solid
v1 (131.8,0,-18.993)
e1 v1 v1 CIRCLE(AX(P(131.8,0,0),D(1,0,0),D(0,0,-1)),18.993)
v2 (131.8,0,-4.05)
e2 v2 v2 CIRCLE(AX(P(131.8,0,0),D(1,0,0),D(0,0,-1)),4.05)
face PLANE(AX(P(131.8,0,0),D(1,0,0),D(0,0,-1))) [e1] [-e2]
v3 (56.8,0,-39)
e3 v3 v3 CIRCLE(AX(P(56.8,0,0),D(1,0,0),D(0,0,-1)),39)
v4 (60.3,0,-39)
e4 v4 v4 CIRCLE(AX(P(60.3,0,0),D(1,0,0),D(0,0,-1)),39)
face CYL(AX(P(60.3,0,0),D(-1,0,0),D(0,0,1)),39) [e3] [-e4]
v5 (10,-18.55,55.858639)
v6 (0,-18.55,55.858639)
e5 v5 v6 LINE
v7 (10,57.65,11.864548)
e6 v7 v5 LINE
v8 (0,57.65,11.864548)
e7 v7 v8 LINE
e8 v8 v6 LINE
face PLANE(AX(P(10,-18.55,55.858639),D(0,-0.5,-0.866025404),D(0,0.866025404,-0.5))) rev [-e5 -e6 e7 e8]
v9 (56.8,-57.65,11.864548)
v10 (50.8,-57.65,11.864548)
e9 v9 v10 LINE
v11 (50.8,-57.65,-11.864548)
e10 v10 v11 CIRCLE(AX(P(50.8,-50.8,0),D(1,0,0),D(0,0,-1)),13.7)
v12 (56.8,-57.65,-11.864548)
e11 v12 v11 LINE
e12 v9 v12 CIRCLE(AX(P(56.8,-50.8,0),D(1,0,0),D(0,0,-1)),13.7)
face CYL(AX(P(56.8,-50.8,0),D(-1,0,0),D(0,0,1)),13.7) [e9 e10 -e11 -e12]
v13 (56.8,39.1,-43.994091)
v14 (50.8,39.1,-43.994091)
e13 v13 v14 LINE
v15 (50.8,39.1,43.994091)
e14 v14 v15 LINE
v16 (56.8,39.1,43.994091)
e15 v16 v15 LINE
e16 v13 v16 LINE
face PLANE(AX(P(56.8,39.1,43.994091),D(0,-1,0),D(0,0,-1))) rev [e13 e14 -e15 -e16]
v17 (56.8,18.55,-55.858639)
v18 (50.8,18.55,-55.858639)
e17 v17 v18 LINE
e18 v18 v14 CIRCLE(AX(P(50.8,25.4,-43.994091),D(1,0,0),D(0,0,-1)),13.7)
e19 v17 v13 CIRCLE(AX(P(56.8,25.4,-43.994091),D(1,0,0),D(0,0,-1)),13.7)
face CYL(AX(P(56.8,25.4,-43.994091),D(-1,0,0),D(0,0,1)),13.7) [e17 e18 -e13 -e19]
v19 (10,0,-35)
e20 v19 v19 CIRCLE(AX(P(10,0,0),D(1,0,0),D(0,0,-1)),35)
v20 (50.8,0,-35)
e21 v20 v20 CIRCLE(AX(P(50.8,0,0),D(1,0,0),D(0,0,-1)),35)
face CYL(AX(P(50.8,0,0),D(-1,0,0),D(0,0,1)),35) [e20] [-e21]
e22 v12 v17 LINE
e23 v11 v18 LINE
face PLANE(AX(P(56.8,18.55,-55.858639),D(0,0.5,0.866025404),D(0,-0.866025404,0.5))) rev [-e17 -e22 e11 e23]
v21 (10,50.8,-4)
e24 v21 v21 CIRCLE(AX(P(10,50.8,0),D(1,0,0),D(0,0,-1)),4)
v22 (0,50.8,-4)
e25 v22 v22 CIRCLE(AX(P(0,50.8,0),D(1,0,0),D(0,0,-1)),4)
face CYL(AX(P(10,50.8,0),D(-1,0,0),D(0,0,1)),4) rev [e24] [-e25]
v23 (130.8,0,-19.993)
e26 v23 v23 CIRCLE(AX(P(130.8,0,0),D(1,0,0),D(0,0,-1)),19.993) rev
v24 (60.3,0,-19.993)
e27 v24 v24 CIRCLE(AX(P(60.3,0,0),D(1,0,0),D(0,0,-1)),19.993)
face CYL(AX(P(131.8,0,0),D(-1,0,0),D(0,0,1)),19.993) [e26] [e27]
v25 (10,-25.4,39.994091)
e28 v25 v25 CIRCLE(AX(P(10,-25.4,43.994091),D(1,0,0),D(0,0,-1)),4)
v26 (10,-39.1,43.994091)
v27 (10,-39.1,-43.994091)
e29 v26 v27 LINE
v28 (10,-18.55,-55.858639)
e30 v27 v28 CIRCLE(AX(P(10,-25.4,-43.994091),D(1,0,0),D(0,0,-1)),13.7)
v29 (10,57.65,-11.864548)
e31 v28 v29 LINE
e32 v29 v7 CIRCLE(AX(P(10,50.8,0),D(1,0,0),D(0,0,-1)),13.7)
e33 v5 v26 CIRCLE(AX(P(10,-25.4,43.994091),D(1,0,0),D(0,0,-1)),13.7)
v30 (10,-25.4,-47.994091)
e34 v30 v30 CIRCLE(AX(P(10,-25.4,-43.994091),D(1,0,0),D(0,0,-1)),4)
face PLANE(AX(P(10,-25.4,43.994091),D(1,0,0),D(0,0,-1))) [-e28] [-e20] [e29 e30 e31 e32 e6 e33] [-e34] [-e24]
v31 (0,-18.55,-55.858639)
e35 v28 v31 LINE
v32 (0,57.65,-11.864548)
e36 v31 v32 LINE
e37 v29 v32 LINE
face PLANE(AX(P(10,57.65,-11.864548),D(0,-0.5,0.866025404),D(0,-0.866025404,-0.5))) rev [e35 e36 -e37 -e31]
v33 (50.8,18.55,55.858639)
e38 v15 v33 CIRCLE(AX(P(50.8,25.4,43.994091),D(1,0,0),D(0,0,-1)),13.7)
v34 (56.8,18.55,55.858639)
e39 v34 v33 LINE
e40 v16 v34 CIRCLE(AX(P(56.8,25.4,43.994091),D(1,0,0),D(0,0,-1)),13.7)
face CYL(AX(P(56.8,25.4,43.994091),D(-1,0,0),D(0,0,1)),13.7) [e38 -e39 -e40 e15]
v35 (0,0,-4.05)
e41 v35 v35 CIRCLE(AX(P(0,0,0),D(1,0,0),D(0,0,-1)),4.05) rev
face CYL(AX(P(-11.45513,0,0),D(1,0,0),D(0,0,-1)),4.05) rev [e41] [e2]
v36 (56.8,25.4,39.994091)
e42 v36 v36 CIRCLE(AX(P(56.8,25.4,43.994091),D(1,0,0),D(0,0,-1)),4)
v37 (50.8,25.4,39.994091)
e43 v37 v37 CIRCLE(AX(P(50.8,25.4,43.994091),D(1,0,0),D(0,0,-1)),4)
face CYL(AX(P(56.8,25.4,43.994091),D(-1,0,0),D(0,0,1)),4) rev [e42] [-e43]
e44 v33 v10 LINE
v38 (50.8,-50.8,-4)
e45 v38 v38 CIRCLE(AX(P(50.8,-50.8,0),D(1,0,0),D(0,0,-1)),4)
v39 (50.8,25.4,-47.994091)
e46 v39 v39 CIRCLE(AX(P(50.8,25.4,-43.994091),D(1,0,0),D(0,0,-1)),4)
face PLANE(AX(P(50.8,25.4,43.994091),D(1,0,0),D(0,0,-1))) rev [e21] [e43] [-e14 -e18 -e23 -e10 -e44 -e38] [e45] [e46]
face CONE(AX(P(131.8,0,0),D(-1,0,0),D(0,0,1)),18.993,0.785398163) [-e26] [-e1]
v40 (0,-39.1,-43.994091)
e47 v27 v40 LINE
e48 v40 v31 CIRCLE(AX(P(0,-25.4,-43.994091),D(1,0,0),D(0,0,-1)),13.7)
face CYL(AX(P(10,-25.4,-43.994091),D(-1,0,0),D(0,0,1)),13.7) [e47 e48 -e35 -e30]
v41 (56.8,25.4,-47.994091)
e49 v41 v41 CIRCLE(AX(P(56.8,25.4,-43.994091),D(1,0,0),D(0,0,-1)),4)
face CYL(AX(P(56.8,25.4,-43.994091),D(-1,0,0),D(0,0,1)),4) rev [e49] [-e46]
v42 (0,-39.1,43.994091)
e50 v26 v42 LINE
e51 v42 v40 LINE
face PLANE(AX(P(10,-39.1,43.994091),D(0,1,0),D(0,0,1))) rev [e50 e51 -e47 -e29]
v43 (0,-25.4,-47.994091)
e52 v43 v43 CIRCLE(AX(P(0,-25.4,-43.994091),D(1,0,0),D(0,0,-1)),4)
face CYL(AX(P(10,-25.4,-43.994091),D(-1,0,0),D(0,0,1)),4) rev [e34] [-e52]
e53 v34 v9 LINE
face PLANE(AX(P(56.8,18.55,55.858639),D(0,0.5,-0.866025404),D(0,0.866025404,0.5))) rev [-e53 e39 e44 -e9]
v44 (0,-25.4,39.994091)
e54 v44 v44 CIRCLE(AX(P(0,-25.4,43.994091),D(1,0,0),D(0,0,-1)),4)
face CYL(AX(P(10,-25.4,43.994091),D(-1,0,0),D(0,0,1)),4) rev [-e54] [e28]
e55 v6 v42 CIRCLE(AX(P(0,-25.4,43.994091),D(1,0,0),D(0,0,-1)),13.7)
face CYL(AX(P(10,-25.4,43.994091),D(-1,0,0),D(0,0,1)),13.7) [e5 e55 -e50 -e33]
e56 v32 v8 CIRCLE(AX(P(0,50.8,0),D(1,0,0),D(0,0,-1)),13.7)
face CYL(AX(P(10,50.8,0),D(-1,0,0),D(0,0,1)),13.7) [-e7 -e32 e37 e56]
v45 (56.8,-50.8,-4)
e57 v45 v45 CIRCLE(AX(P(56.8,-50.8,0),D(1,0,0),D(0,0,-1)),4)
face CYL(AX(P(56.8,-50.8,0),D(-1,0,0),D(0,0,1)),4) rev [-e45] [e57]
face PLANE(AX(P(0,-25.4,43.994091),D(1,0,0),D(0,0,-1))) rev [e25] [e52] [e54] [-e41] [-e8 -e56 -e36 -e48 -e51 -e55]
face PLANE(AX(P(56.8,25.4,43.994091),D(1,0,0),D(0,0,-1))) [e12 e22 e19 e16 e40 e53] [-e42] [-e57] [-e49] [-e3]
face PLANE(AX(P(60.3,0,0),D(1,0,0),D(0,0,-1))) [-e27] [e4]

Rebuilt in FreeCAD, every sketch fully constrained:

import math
import FreeCAD as App
import Part
import Sketcher
Q = App.Units.Quantity


def edges_at(feature, points):
    """Names of the edges that pass closest to the given points."""
    edges = feature.Shape.Edges
    near = lambda p: min(range(len(edges)), key=lambda i: edges[i].distToShape(Part.Vertex(*p))[0])
    return sorted({f"Edge{near(p) + 1}" for p in points})

doc = App.newDocument("Part")
params = doc.addObject("Spreadsheet::Sheet", "Params")
for row, (alias, value) in enumerate([
    ("sketch1_diameter", "8 mm"),
    ("sketch1_radius", "13.7 mm"),
    ("pad1_length", "10 mm"),
    ("sketch2_diameter", "70 mm"),
    ("pad2_length", "40.8 mm"),
    ("sketch3_diameter", "8 mm"),
    ("sketch3_radius", "13.7 mm"),
    ("pad3_length", "6 mm"),
    ("pad4_length", "75 mm"),
    ("sketch5_diameter", "78 mm"),
    ("pad5_length", "3.5 mm"),
    ("chamfer_size", "1 mm"),
    ("sketch6_diameter", "8.1 mm"),
    ("pocket1_length", "131.8 mm"),
], start=1):
    params.set(f"A{row}", alias)
    params.set(f"B{row}", "=" + value)
    params.setAlias(f"B{row}", alias)

body = doc.addObject("PartDesign::Body", "Body")

# Sketch on YZ plane
sketch1 = doc.addObject("Sketcher::SketchObject", "Sketch")
body.addObject(sketch1)
sketch1.AttachmentSupport = (doc.YZ_Plane, [""])
sketch1.MapMode = "FlatFace"
sketch1.addGeometry([
    Part.LineSegment(App.Vector(57.6, 11.9, 0), App.Vector(-18.6, 55.9, 0)),  # 0
    Part.ArcOfCircle(Part.Circle(App.Vector(-25.4, 44, 0), App.Vector(0, 0, 1), 13.7), math.radians(60), math.radians(180)),  # 1
    Part.LineSegment(App.Vector(-39.1, 44, 0), App.Vector(-39.1, -44, 0)),  # 2
    Part.ArcOfCircle(Part.Circle(App.Vector(-25.4, -44, 0), App.Vector(0, 0, 1), 13.7), math.radians(180), math.radians(300)),  # 3
    Part.LineSegment(App.Vector(-18.6, -55.9, 0), App.Vector(57.6, -11.9, 0)),  # 4
    Part.ArcOfCircle(Part.Circle(App.Vector(50.8, 0, 0), App.Vector(0, 0, 1), 13.7), math.radians(-60), math.radians(60)),  # 5
    Part.Circle(App.Vector(-25.4, -44, 0), App.Vector(0, 0, 1), 4),  # 6
    Part.Circle(App.Vector(-25.4, 44, 0), App.Vector(0, 0, 1), 4),  # 7
    Part.Circle(App.Vector(50.8, 0, 0), App.Vector(0, 0, 1), 4),  # 8
], False)
sketch1.addConstraint([
    Sketcher.Constraint("Tangent", 0, 2, 1, 1),
    Sketcher.Constraint("Tangent", 1, 2, 2, 1),
    Sketcher.Constraint("Tangent", 2, 2, 3, 1),
    Sketcher.Constraint("Tangent", 3, 2, 4, 1),
    Sketcher.Constraint("Tangent", 4, 2, 5, 1),
    Sketcher.Constraint("Tangent", 5, 2, 0, 1),
    Sketcher.Constraint("Vertical", 2),
    Sketcher.Constraint("Coincident", 6, 3, 3, 3),
    Sketcher.Constraint("Coincident", 7, 3, 1, 3),
    Sketcher.Constraint("Coincident", 8, 3, 5, 3),
    Sketcher.Constraint("Equal", 1, 3),
    Sketcher.Constraint("Equal", 3, 5),
    Sketcher.Constraint("Equal", 6, 7),
    Sketcher.Constraint("Equal", 7, 8),
    Sketcher.Constraint("Symmetric", 0, 2, 3, 2, -1),
    Sketcher.Constraint("Diameter", 6, Q("8 mm")),
    Sketcher.Constraint("Radius", 1, Q("13.7 mm")),
    Sketcher.Constraint("Angle", 0, Q("150 deg")),
    Sketcher.Constraint("DistanceX", 1, 3, -1, 1, Q("25.4 mm")),
    Sketcher.Constraint("DistanceX", -1, 1, 5, 3, Q("50.8 mm")),
])
sketch1.setExpression("Constraints[15]", "Params.sketch1_diameter")
sketch1.setExpression("Constraints[16]", "Params.sketch1_radius")
pad1 = doc.addObject("PartDesign::Pad", "Pad")
body.addObject(pad1)
pad1.Profile = sketch1
pad1.setExpression("Length", "Params.pad1_length")

# Sketch on YZ plane
sketch2 = doc.addObject("Sketcher::SketchObject", "Sketch001")
body.addObject(sketch2)
sketch2.AttachmentSupport = (doc.YZ_Plane, [""])
sketch2.MapMode = "FlatFace"
sketch2.AttachmentOffset = App.Placement(App.Vector(0, 0, 10), App.Rotation())
sketch2.addGeometry(Part.Circle(App.Vector(0, 0, 0), App.Vector(0, 0, 1), 35), False)
sketch2.addConstraint([
    Sketcher.Constraint("Coincident", 0, 3, -1, 1),
    Sketcher.Constraint("Diameter", 0, Q("70 mm")),
])
sketch2.setExpression("Constraints[1]", "Params.sketch2_diameter")
pad2 = doc.addObject("PartDesign::Pad", "Pad001")
body.addObject(pad2)
pad2.Profile = sketch2
pad2.setExpression("Length", "Params.pad2_length")

# Sketch on YZ plane
sketch3 = doc.addObject("Sketcher::SketchObject", "Sketch002")
body.addObject(sketch3)
sketch3.AttachmentSupport = (doc.YZ_Plane, [""])
sketch3.MapMode = "FlatFace"
sketch3.AttachmentOffset = App.Placement(App.Vector(0, 0, 50.8), App.Rotation())
sketch3.addGeometry([
    Part.LineSegment(App.Vector(39.1, -44, 0), App.Vector(39.1, 44, 0)),  # 0
    Part.ArcOfCircle(Part.Circle(App.Vector(25.4, 44, 0), App.Vector(0, 0, 1), 13.7), math.radians(0), math.radians(120)),  # 1
    Part.LineSegment(App.Vector(18.6, 55.9, 0), App.Vector(-57.6, 11.9, 0)),  # 2
    Part.ArcOfCircle(Part.Circle(App.Vector(-50.8, 0, 0), App.Vector(0, 0, 1), 13.7), math.radians(120), math.radians(240)),  # 3
    Part.LineSegment(App.Vector(-57.6, -11.9, 0), App.Vector(18.6, -55.9, 0)),  # 4
    Part.ArcOfCircle(Part.Circle(App.Vector(25.4, -44, 0), App.Vector(0, 0, 1), 13.7), math.radians(-120), math.radians(0)),  # 5
    Part.Circle(App.Vector(-50.8, 0, 0), App.Vector(0, 0, 1), 4),  # 6
    Part.Circle(App.Vector(25.4, -44, 0), App.Vector(0, 0, 1), 4),  # 7
    Part.Circle(App.Vector(25.4, 44, 0), App.Vector(0, 0, 1), 4),  # 8
], False)
sketch3.addConstraint([
    Sketcher.Constraint("Tangent", 0, 2, 1, 1),
    Sketcher.Constraint("Tangent", 1, 2, 2, 1),
    Sketcher.Constraint("Tangent", 2, 2, 3, 1),
    Sketcher.Constraint("Tangent", 3, 2, 4, 1),
    Sketcher.Constraint("Tangent", 4, 2, 5, 1),
    Sketcher.Constraint("Tangent", 5, 2, 0, 1),
    Sketcher.Constraint("Vertical", 0),
    Sketcher.Constraint("Coincident", 6, 3, 3, 3),
    Sketcher.Constraint("Coincident", 7, 3, 5, 3),
    Sketcher.Constraint("Coincident", 8, 3, 1, 3),
    Sketcher.Constraint("Equal", 1, 3),
    Sketcher.Constraint("Equal", 3, 5),
    Sketcher.Constraint("Equal", 6, 7),
    Sketcher.Constraint("Equal", 7, 8),
    Sketcher.Constraint("Symmetric", 2, 2, 3, 2, -1),
    Sketcher.Constraint("Diameter", 6, Q("8 mm")),
    Sketcher.Constraint("Radius", 1, Q("13.7 mm")),
    Sketcher.Constraint("Angle", 2, Q("-150 deg")),
    Sketcher.Constraint("DistanceX", -1, 1, 1, 3, Q("25.4 mm")),
    Sketcher.Constraint("DistanceX", 3, 3, -1, 1, Q("50.8 mm")),
])
sketch3.setExpression("Constraints[15]", "Params.sketch3_diameter")
sketch3.setExpression("Constraints[16]", "Params.sketch3_radius")
pad3 = doc.addObject("PartDesign::Pad", "Pad002")
body.addObject(pad3)
pad3.Profile = sketch3
pad3.setExpression("Length", "Params.pad3_length")

# Sketch on YZ plane
sketch4 = doc.addObject("Sketcher::SketchObject", "Sketch003")
body.addObject(sketch4)
sketch4.AttachmentSupport = (doc.YZ_Plane, [""])
sketch4.MapMode = "FlatFace"
sketch4.AttachmentOffset = App.Placement(App.Vector(0, 0, 56.8), App.Rotation())
sketch4.addGeometry(Part.Circle(App.Vector(0, 0, 0), App.Vector(0, 0, 1), 20), False)
sketch4.addConstraint([
    Sketcher.Constraint("Coincident", 0, 3, -1, 1),
    Sketcher.Constraint("Diameter", 0, Q("39.986 mm")),
])
pad4 = doc.addObject("PartDesign::Pad", "Pad003")
body.addObject(pad4)
pad4.Profile = sketch4
pad4.setExpression("Length", "Params.pad4_length")

# Sketch on YZ plane
sketch5 = doc.addObject("Sketcher::SketchObject", "Sketch004")
body.addObject(sketch5)
sketch5.AttachmentSupport = (doc.YZ_Plane, [""])
sketch5.MapMode = "FlatFace"
sketch5.AttachmentOffset = App.Placement(App.Vector(0, 0, 56.8), App.Rotation())
sketch5.addGeometry(Part.Circle(App.Vector(0, 0, 0), App.Vector(0, 0, 1), 39), False)
sketch5.addConstraint([
    Sketcher.Constraint("Coincident", 0, 3, -1, 1),
    Sketcher.Constraint("Diameter", 0, Q("78 mm")),
])
sketch5.setExpression("Constraints[1]", "Params.sketch5_diameter")
pad5 = doc.addObject("PartDesign::Pad", "Pad004")
body.addObject(pad5)
pad5.Profile = sketch5
pad5.setExpression("Length", "Params.pad5_length")
doc.recompute()

chamfer = doc.addObject("PartDesign::Chamfer", "Chamfer")
body.addObject(chamfer)
chamfer.Base = (pad5, edges_at(pad5, [(131.8, 0, 19.993)]))
chamfer.setExpression("Size", "Params.chamfer_size")

# Sketch on YZ plane
sketch6 = doc.addObject("Sketcher::SketchObject", "Sketch005")
body.addObject(sketch6)
sketch6.AttachmentSupport = (doc.YZ_Plane, [""])
sketch6.MapMode = "FlatFace"
sketch6.AttachmentOffset = App.Placement(App.Vector(0, 0, 131.8), App.Rotation())
sketch6.addGeometry(Part.Circle(App.Vector(0, 0, 0), App.Vector(0, 0, 1), 4), False)
sketch6.addConstraint([
    Sketcher.Constraint("Coincident", 0, 3, -1, 1),
    Sketcher.Constraint("Diameter", 0, Q("8.1 mm")),
])
sketch6.setExpression("Constraints[1]", "Params.sketch6_diameter")
pocket1 = doc.addObject("PartDesign::Pocket", "Pocket")
body.addObject(pocket1)
pocket1.Profile = sketch6
pocket1.setExpression("Length", "Params.pocket1_length")

doc.recompute()
